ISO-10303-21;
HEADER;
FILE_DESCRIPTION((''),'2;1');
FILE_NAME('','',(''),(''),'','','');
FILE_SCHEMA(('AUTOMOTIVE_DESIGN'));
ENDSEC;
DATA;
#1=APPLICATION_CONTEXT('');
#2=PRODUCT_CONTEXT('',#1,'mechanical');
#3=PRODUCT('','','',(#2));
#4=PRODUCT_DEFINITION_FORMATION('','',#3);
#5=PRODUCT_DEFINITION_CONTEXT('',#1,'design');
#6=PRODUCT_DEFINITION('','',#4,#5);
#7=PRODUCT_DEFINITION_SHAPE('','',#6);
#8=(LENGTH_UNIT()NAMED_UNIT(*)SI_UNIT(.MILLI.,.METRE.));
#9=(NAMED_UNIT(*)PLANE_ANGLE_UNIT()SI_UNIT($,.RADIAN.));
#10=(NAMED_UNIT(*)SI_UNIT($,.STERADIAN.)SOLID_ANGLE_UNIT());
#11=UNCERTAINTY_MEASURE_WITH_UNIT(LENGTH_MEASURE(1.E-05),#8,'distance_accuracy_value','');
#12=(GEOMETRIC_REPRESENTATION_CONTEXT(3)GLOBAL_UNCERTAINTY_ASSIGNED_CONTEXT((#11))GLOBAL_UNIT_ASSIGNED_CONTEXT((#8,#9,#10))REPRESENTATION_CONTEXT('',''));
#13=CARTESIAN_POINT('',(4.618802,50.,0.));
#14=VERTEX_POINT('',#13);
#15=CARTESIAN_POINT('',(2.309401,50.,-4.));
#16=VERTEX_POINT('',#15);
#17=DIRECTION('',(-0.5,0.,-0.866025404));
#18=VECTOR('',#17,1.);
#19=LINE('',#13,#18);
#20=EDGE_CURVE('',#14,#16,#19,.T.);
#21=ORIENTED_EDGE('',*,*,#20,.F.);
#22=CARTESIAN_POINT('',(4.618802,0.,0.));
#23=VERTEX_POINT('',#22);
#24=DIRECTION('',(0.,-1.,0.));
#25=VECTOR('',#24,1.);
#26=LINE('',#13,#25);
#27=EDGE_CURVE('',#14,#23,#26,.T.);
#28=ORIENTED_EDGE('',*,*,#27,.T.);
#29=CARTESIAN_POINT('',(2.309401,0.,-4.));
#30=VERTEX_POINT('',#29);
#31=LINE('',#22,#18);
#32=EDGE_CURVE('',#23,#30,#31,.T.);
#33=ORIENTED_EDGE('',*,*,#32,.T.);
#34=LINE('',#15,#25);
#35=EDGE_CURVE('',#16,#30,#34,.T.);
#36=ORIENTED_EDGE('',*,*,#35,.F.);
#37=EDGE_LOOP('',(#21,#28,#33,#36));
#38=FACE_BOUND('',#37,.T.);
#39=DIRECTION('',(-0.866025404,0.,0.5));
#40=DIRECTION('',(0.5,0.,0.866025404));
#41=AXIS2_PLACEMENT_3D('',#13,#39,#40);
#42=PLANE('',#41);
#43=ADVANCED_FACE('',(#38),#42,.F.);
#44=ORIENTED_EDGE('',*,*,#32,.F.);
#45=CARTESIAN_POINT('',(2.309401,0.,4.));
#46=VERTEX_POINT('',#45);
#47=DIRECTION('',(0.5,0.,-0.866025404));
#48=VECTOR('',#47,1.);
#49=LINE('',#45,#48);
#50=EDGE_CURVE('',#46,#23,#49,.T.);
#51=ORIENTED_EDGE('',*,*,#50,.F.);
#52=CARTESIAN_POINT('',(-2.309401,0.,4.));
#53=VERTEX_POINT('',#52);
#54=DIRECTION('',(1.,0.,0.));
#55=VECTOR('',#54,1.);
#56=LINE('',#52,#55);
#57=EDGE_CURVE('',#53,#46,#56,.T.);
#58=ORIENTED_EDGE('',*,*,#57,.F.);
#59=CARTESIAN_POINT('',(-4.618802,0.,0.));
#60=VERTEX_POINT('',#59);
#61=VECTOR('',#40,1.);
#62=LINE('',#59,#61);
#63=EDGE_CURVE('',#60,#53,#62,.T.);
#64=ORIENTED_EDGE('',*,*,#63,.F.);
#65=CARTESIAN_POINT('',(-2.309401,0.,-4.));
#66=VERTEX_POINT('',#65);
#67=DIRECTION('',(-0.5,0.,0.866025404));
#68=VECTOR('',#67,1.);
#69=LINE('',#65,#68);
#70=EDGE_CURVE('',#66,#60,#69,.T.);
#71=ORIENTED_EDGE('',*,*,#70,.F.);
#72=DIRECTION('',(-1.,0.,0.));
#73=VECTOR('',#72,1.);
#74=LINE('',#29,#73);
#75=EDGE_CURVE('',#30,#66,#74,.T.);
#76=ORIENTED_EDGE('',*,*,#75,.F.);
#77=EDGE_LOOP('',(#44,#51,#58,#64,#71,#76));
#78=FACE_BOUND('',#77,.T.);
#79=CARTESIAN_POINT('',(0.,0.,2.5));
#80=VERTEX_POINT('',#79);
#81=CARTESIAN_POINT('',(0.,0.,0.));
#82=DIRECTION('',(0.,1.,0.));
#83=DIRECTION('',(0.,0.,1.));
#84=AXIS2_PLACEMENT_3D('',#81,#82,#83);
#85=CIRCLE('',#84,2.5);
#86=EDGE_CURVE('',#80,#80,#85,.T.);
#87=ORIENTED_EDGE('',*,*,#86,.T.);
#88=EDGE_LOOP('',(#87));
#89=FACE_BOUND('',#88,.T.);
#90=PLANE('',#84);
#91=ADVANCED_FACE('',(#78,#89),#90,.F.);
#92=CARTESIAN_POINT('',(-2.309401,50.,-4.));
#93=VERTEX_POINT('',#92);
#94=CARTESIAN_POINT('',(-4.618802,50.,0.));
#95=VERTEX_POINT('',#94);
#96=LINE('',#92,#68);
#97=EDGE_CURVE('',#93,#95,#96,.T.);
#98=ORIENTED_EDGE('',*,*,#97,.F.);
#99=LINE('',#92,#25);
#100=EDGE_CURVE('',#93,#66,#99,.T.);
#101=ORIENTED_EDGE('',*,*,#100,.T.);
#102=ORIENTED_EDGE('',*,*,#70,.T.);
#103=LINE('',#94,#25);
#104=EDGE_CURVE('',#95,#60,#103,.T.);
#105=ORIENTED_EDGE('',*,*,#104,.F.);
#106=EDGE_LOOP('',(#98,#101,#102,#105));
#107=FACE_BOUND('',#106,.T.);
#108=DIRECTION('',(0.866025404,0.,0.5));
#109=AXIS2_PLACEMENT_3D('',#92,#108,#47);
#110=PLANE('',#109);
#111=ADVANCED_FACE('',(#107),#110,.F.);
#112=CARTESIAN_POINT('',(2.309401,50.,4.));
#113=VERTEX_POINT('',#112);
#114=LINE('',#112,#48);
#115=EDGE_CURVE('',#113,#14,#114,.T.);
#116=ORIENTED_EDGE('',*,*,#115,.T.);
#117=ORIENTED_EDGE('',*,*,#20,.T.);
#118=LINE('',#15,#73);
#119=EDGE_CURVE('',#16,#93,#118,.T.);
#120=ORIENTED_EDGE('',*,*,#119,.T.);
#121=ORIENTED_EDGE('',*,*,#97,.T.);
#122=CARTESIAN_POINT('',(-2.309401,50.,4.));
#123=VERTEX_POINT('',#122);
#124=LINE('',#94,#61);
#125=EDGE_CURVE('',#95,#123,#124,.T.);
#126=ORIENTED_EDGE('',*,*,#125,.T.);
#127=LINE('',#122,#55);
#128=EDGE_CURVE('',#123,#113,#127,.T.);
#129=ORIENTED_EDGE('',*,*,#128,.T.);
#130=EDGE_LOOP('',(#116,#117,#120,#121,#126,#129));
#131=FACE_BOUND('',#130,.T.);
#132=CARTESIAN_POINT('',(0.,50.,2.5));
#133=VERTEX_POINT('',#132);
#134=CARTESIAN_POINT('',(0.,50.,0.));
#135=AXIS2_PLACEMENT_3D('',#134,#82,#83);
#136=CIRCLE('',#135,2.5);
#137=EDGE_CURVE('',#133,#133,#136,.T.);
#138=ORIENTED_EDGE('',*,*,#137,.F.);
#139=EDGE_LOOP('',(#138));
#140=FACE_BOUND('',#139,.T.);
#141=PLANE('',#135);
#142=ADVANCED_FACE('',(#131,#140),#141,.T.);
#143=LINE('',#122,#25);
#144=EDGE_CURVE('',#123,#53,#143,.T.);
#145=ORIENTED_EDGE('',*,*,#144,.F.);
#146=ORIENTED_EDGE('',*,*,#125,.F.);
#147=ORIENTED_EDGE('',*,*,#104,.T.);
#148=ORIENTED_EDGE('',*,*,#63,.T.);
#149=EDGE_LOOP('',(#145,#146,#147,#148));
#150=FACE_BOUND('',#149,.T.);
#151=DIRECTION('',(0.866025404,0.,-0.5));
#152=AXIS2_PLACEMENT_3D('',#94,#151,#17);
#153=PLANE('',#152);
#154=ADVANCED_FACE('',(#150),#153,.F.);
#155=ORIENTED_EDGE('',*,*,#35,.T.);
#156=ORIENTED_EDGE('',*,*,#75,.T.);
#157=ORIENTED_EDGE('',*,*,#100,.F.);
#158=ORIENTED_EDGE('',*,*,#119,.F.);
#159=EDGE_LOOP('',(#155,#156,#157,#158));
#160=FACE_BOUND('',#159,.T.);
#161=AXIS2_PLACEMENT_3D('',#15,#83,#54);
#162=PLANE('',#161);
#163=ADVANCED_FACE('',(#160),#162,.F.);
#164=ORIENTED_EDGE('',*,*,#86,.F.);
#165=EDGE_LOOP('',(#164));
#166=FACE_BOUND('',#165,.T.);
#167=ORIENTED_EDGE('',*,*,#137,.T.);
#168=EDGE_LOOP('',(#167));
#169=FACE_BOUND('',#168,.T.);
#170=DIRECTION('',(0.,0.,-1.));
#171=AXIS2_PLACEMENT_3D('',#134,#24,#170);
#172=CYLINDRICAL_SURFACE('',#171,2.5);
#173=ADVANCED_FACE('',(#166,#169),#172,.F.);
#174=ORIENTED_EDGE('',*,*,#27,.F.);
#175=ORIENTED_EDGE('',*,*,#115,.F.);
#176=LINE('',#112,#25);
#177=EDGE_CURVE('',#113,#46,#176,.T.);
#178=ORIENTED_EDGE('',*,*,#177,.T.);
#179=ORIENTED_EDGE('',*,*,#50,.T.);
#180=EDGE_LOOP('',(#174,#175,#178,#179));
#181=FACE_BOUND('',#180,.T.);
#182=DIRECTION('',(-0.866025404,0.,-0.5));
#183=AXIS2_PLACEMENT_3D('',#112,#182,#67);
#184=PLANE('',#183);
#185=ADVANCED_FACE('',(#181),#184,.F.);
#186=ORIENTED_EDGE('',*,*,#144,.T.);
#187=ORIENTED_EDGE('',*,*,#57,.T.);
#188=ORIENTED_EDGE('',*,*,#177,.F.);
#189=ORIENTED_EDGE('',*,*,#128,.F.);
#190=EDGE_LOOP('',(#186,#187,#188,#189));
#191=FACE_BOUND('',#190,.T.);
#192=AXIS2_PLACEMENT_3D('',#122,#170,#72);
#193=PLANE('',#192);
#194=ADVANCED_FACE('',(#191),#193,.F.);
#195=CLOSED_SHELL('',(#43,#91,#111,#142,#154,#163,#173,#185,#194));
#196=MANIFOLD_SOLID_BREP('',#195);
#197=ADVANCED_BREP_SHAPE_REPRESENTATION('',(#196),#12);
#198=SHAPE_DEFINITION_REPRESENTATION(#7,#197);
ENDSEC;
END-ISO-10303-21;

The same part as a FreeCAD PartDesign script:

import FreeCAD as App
import Part
import Sketcher
Q = App.Units.Quantity

doc = App.newDocument("Part")
body = doc.addObject("PartDesign::Body", "Body")

# Sketch on XZ plane
sketch1 = body.newObject("Sketcher::SketchObject", "Sketch")
sketch1.AttachmentSupport = (doc.getObject("XZ_Plane"), [""])
sketch1.MapMode = "FlatFace"
sketch1.addGeometry([
    Part.LineSegment(App.Vector(4.618802, 0, 0), App.Vector(2.309401, -4, 0)),  # 0
    Part.LineSegment(App.Vector(2.309401, -4, 0), App.Vector(-2.309401, -4, 0)),  # 1
    Part.LineSegment(App.Vector(-2.309401, -4, 0), App.Vector(-4.618802, 0, 0)),  # 2
    Part.LineSegment(App.Vector(-4.618802, 0, 0), App.Vector(-2.309401, 4, 0)),  # 3
    Part.LineSegment(App.Vector(-2.309401, 4, 0), App.Vector(2.309401, 4, 0)),  # 4
    Part.LineSegment(App.Vector(2.309401, 4, 0), App.Vector(4.618802, 0, 0)),  # 5
    Part.Circle(App.Vector(0, 0, 0), App.Vector(0, 0, 1), 2.5),  # 6
], False)
sketch1.addConstraint([
    Sketcher.Constraint("Coincident", 0, 2, 1, 1),
    Sketcher.Constraint("Coincident", 1, 2, 2, 1),
    Sketcher.Constraint("Coincident", 2, 2, 3, 1),
    Sketcher.Constraint("Coincident", 3, 2, 4, 1),
    Sketcher.Constraint("Coincident", 4, 2, 5, 1),
    Sketcher.Constraint("Coincident", 5, 2, 0, 1),
    Sketcher.Constraint("Horizontal", 1),
    Sketcher.Constraint("Horizontal", 4),
    Sketcher.Constraint("Coincident", 6, 3, -1, 1),
    Sketcher.Constraint("Symmetric", 0, 2, 3, 2, -1, 1),
    Sketcher.Constraint("Symmetric", 2, 2, 5, 2, -1, 1),
    Sketcher.Constraint("PointOnObject", 2, 2, -1),
    Sketcher.Constraint("Parallel", 2, 5),
    Sketcher.Constraint("Vertical", 1, 2, 3, 2),
    Sketcher.Constraint("Diameter", 6, 5.0),
    Sketcher.Constraint("Angle", 0, Q("-120 deg")),
    Sketcher.Constraint("DistanceY", 0, 2, -1, 1, 4.0),
    Sketcher.Constraint("DistanceX", -1, 1, 0, 2, 2.309401),
])
pad1 = body.newObject("PartDesign::Pad", "Pad")
pad1.Profile = sketch1
pad1.Length = 50
pad1.Reversed = True

doc.recompute()
